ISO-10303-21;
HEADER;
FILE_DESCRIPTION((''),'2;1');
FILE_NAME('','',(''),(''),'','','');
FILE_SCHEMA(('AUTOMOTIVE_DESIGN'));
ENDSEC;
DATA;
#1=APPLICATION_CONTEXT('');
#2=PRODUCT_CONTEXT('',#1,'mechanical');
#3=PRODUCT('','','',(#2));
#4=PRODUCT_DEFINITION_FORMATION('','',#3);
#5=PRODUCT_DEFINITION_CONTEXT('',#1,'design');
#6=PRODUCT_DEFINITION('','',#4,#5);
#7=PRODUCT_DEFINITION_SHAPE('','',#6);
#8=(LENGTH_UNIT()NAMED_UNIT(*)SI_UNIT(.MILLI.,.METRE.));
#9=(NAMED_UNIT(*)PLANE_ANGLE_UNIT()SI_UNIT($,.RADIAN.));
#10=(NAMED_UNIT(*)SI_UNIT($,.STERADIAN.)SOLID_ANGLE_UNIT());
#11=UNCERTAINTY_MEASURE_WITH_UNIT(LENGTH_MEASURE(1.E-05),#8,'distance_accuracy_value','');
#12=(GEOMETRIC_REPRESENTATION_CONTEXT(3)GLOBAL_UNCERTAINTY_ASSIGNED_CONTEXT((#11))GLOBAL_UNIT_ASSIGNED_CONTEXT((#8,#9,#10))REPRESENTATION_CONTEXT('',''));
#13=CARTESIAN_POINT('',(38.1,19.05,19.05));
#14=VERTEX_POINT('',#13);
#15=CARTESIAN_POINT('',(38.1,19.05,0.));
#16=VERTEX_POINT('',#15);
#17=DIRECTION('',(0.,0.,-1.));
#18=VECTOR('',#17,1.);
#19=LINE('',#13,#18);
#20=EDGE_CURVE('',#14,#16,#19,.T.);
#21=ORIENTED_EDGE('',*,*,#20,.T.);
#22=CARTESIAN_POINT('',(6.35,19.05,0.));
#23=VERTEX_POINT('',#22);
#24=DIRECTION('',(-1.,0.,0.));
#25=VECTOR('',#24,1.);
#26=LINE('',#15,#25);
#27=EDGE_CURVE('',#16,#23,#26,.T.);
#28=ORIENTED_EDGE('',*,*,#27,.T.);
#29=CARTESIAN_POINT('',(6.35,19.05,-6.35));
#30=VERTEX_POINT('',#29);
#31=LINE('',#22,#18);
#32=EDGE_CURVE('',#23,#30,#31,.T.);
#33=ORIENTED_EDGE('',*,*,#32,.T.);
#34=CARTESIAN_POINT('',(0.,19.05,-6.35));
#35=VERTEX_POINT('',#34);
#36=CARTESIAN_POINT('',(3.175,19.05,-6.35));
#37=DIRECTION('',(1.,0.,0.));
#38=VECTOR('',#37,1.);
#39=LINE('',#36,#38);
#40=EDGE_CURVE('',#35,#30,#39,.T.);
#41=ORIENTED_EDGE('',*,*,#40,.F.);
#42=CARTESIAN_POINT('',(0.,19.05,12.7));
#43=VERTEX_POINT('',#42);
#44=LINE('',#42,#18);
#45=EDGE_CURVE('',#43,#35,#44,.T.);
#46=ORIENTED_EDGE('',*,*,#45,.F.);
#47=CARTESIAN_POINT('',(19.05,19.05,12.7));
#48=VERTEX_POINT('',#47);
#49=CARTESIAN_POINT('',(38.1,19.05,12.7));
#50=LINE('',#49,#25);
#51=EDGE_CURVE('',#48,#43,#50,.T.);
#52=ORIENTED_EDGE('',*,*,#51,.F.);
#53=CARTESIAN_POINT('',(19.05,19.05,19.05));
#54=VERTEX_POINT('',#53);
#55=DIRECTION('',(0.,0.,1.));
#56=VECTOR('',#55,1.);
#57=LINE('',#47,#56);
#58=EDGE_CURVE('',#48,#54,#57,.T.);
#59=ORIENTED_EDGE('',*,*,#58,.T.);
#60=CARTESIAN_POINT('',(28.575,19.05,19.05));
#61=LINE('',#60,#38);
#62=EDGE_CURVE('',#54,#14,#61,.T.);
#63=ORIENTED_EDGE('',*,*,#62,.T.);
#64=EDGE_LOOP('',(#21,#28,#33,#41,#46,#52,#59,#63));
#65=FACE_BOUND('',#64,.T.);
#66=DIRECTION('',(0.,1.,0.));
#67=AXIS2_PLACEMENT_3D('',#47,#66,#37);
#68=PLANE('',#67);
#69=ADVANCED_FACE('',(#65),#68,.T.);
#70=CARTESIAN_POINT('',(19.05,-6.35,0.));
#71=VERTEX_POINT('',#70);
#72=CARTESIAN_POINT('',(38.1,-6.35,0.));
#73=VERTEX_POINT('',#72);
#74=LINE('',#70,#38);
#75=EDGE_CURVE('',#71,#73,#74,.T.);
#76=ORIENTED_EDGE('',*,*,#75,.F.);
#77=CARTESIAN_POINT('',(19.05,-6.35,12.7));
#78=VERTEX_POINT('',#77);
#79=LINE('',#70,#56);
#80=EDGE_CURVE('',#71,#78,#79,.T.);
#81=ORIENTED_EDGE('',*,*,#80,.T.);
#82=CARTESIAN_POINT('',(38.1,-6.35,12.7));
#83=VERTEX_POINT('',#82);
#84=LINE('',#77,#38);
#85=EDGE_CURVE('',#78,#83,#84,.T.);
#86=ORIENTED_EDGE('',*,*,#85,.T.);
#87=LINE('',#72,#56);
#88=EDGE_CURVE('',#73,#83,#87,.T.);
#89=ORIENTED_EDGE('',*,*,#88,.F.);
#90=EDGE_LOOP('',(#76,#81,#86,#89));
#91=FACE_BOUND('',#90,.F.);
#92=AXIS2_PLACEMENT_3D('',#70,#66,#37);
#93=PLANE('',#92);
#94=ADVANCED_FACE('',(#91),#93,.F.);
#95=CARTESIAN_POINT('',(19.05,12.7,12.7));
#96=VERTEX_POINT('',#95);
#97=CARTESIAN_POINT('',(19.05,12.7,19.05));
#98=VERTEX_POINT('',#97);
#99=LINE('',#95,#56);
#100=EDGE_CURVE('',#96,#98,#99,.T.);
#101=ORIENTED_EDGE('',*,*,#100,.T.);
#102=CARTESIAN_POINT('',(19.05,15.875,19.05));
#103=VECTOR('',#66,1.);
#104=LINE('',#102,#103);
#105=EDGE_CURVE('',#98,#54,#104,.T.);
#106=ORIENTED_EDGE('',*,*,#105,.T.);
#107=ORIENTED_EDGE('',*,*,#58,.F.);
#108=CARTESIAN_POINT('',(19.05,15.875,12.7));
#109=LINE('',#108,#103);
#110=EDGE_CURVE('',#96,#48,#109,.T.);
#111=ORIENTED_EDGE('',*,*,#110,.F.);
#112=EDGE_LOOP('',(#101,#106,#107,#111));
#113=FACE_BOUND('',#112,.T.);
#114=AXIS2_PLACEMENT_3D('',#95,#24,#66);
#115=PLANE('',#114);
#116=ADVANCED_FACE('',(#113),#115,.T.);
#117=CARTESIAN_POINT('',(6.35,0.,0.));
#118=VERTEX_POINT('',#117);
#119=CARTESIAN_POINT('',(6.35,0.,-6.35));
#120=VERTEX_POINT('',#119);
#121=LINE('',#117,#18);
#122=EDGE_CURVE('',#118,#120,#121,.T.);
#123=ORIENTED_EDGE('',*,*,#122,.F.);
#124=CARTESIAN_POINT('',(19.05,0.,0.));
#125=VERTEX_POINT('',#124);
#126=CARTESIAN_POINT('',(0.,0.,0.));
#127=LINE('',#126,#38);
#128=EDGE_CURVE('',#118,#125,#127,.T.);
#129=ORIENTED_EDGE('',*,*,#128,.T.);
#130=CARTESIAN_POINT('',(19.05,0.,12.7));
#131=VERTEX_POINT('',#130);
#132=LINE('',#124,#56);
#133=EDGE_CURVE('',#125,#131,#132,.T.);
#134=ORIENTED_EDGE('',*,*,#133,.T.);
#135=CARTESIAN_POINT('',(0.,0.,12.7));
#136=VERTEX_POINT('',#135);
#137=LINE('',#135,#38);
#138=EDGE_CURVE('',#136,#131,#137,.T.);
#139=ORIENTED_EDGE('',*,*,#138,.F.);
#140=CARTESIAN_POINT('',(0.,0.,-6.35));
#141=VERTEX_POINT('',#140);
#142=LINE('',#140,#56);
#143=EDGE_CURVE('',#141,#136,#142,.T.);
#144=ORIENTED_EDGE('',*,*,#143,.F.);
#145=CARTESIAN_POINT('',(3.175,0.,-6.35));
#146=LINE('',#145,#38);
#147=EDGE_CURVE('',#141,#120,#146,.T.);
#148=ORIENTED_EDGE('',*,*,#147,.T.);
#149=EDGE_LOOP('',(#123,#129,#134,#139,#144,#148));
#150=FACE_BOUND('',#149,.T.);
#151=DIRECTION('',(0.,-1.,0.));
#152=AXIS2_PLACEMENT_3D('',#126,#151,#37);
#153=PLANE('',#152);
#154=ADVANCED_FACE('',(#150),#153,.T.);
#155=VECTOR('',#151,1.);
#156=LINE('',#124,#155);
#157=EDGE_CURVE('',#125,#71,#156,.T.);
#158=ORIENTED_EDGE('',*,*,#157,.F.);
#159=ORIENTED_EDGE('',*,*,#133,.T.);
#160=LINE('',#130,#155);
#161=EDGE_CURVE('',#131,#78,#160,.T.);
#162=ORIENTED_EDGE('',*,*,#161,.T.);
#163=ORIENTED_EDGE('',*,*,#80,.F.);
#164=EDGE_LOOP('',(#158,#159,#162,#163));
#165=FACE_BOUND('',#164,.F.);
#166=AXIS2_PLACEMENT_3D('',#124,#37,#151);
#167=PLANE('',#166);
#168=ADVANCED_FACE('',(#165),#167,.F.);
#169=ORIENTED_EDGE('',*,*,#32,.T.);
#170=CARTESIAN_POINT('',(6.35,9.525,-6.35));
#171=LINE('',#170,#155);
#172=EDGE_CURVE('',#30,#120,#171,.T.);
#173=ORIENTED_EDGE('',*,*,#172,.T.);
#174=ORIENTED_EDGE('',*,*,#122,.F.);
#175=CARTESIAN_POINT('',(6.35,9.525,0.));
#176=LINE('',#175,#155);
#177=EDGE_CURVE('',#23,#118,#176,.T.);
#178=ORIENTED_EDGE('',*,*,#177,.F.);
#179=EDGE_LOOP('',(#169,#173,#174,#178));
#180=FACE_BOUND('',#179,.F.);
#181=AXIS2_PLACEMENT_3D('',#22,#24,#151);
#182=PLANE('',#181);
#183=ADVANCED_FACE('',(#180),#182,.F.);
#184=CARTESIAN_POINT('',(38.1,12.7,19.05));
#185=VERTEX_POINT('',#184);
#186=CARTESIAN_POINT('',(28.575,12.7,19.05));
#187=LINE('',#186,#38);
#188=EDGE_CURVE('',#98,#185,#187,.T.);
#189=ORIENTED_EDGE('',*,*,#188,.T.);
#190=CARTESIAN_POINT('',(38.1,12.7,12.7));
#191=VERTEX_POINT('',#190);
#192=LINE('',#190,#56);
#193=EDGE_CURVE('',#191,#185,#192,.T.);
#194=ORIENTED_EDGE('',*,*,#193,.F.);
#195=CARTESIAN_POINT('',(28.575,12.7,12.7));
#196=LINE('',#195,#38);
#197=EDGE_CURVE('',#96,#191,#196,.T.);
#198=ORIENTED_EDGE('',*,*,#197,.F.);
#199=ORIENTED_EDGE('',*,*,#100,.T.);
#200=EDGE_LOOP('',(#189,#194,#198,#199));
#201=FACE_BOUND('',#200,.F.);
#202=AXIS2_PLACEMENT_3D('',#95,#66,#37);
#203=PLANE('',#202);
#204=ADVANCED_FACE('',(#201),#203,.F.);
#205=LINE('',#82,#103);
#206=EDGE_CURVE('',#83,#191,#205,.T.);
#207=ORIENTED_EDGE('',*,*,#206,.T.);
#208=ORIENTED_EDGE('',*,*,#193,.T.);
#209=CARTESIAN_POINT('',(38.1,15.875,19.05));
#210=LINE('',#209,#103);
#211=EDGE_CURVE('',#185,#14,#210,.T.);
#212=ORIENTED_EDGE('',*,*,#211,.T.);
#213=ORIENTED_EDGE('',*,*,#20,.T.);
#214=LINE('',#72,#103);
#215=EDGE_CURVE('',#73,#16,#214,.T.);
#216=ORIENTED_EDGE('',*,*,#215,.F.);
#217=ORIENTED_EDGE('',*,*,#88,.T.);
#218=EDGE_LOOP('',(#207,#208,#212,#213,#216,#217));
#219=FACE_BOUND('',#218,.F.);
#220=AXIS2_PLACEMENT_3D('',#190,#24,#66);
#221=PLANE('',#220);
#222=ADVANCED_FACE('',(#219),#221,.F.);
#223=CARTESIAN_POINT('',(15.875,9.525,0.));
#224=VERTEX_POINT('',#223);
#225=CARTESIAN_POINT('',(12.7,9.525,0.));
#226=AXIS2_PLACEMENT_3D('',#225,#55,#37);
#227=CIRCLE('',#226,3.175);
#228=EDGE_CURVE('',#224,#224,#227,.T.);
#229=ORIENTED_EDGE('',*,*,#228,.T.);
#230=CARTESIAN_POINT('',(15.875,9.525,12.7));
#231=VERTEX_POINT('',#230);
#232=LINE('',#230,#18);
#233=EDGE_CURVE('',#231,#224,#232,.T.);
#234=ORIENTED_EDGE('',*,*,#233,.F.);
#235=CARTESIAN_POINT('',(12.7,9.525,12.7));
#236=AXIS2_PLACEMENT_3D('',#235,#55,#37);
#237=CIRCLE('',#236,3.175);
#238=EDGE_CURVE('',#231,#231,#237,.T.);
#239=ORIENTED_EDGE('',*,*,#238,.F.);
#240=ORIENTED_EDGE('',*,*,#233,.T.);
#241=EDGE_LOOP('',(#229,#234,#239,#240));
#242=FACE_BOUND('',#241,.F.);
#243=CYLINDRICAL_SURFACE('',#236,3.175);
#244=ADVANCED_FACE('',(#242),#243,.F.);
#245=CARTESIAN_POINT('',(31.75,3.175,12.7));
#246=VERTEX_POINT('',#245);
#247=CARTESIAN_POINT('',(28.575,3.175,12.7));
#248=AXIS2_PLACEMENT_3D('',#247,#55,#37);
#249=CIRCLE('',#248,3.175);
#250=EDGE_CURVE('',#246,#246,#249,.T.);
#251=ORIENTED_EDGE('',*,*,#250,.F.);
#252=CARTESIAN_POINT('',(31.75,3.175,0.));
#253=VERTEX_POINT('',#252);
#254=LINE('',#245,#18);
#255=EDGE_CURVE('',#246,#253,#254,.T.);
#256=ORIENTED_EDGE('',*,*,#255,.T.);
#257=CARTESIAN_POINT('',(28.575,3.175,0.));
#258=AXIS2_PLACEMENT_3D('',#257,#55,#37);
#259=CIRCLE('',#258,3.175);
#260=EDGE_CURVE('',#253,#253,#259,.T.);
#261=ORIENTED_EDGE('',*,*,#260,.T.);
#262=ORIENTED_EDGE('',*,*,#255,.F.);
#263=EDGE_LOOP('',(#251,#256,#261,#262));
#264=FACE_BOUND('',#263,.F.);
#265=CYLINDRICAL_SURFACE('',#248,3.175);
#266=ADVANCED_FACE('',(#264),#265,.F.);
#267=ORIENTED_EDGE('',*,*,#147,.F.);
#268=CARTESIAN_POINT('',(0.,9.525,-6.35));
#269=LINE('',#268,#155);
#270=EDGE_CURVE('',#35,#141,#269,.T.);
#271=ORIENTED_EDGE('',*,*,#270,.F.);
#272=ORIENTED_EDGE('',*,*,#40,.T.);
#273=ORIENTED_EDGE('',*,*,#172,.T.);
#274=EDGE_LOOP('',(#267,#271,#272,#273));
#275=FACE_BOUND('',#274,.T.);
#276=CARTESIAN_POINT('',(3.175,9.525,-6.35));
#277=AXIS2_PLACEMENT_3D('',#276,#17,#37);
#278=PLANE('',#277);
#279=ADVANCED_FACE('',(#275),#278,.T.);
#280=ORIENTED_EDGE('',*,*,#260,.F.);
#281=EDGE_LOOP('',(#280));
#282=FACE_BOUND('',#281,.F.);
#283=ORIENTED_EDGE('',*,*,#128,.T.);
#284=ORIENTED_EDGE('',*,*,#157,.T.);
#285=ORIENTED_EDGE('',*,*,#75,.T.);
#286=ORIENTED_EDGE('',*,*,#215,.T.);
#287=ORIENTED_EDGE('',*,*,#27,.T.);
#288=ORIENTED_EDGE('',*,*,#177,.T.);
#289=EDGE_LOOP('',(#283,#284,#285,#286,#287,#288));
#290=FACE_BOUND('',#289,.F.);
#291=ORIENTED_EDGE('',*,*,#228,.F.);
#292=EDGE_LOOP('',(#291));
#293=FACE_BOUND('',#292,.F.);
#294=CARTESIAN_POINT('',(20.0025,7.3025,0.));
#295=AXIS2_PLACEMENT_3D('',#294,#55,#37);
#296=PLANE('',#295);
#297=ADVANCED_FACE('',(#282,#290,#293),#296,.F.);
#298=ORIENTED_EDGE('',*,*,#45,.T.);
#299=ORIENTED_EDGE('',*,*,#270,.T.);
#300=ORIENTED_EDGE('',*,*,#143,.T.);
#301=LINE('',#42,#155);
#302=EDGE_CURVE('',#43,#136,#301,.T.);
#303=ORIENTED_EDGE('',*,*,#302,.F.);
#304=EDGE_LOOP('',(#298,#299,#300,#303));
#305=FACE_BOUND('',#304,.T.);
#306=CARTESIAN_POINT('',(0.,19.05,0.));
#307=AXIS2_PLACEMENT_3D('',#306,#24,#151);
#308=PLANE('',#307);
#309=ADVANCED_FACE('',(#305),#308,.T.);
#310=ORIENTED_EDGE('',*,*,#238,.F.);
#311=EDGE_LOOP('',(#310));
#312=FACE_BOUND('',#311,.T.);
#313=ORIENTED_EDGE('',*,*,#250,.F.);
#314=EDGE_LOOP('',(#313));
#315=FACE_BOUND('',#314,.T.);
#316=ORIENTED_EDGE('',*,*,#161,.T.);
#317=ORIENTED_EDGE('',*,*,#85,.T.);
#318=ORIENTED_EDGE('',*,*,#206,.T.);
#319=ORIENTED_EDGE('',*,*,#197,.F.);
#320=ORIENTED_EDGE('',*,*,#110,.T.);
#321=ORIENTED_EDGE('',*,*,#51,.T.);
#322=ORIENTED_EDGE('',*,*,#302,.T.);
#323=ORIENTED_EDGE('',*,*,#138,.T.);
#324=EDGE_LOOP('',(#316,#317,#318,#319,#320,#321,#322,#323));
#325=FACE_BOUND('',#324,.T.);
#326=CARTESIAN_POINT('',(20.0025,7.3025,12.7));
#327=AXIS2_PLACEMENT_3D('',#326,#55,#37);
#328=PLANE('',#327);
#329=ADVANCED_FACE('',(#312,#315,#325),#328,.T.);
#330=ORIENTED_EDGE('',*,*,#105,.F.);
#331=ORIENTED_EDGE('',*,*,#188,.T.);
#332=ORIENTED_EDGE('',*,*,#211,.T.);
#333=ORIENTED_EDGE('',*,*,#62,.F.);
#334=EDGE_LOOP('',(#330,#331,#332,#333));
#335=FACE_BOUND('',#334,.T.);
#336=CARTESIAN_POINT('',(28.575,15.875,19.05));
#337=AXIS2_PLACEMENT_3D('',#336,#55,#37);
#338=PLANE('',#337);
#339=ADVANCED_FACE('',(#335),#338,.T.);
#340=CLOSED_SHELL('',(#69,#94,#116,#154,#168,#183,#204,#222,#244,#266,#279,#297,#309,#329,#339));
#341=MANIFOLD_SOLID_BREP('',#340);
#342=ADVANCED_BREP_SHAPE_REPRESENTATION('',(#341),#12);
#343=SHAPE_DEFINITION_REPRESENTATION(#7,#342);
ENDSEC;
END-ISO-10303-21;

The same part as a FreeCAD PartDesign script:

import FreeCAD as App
import Part
import Sketcher
from FreeCAD import Vector
Q = App.Units.Quantity


def add_polygon(sketch, points):
    """Adds a closed chain of lines whose ends are joined by coincident constraints."""
    first, n = sketch.GeometryCount, len(points)
    for a, b in zip(points, points[1:] + points[:1]):
        sketch.addGeometry(Part.LineSegment(App.Vector(*a, 0), App.Vector(*b, 0)), False)
    for i in range(n):
        sketch.addConstraint(Sketcher.Constraint("Coincident", first + i, 2, first + (i + 1) % n, 1))

doc = App.newDocument("Part")
params = doc.addObject("Spreadsheet::Sheet", "Params")
for row, (alias, value) in enumerate([
    ("sketch1_height", "1 in"),
    ("sketch1_width", "1.5 in"),
    ("pad1_length", "0.5 in"),
    ("sketch2_width", "0.25 in"),
    ("sketch2_height", "0.75 in"),
    ("pad2_length", "0.25 in"),
    ("sketch3_width", "0.75 in"),
    ("sketch3_height", "0.25 in"),
    ("pad3_length", "0.25 in"),
    ("sketch4_diameter", "0.25 in"),
    ("pocket1_length", "1 in"),
    ("sketch5_diameter", "0.25 in"),
    ("pocket2_length", "1 in"),
], start=1):
    params.set(f"A{row}", alias)
    params.set(f"B{row}", "=" + value)
    params.setAlias(f"B{row}", alias)

body = doc.addObject("PartDesign::Body", "Body")

# Sketch on XY plane
sketch1 = body.newObject("Sketcher::SketchObject", "Sketch")
sketch1.AttachmentSupport = (doc.getObject("XY_Plane"), [""])
sketch1.MapMode = "FlatFace"
add_polygon(sketch1, [(0, 19), (0, 0), (19, 0), (19, -6), (38, -6), (38, 19)])  # lines 0-5
sketch1.addConstraint([
    Sketcher.Constraint("Vertical", 0),
    Sketcher.Constraint("Horizontal", 1),
    Sketcher.Constraint("Vertical", 2),
    Sketcher.Constraint("Horizontal", 3),
    Sketcher.Constraint("Vertical", 4),
    Sketcher.Constraint("Horizontal", 5),
    Sketcher.Constraint("Coincident", 0, 2, -1, 1),
    Sketcher.Constraint("Equal", 1, 3),
    Sketcher.Constraint("Equal", 3, 0),
    Sketcher.Constraint("DistanceY", 4, 1, 4, 2, Q("1 in")),
    Sketcher.Constraint("DistanceX", 5, 2, 5, 1, Q("1.5 in")),
])
sketch1.setExpression("Constraints[15]", "Params.sketch1_height")
sketch1.setExpression("Constraints[16]", "Params.sketch1_width")
pad1 = body.newObject("PartDesign::Pad", "Pad")
pad1.Profile = sketch1
pad1.setExpression("Length", "Params.pad1_length")

# Sketch on XY plane
sketch2 = body.newObject("Sketcher::SketchObject", "Sketch001")
sketch2.AttachmentSupport = (doc.getObject("XY_Plane"), [""])
sketch2.MapMode = "FlatFace"
add_polygon(sketch2, [(0, 0), (0, 19), (6, 19), (6, 0)])  # lines 0-3
sketch2.addConstraint([
    Sketcher.Constraint("Vertical", 0),
    Sketcher.Constraint("Horizontal", 1),
    Sketcher.Constraint("Vertical", 2),
    Sketcher.Constraint("Horizontal", 3),
    Sketcher.Constraint("Coincident", 3, 2, -1, 1),
    Sketcher.Constraint("DistanceX", 1, 1, 1, 2, Q("0.25 in")),
    Sketcher.Constraint("DistanceY", 0, 1, 0, 2, Q("0.75 in")),
])
sketch2.setExpression("Constraints[9]", "Params.sketch2_width")
sketch2.setExpression("Constraints[10]", "Params.sketch2_height")
pad2 = body.newObject("PartDesign::Pad", "Pad001")
pad2.Profile = sketch2
pad2.setExpression("Length", "Params.pad2_length")
pad2.Reversed = True

# Sketch on XY plane
sketch3 = body.newObject("Sketcher::SketchObject", "Sketch002")
sketch3.AttachmentSupport = (doc.getObject("XY_Plane"), [""])
sketch3.MapMode = "FlatFace"
sketch3.AttachmentOffset = App.Placement(Vector(0, 0, 0.5 * 25.4), App.Rotation())
add_polygon(sketch3, [(19, 19), (19, 13), (38, 13), (38, 19)])  # lines 0-3
sketch3.addConstraint([
    Sketcher.Constraint("Vertical", 0),
    Sketcher.Constraint("Horizontal", 1),
    Sketcher.Constraint("Vertical", 2),
    Sketcher.Constraint("Horizontal", 3),
    Sketcher.Constraint("DistanceX", 1, 1, 1, 2, Q("0.75 in")),
    Sketcher.Constraint("DistanceY", 0, 2, 0, 1, Q("0.25 in")),
    Sketcher.Constraint("DistanceY", -1, 1, 0, 2, Q("0.5 in")),
    Sketcher.Constraint("DistanceX", -1, 1, 1, 2, Q("1.5 in")),
])
sketch3.setExpression("Constraints[8]", "Params.sketch3_width")
sketch3.setExpression("Constraints[9]", "Params.sketch3_height")
pad3 = body.newObject("PartDesign::Pad", "Pad002")
pad3.Profile = sketch3
pad3.setExpression("Length", "Params.pad3_length")

# Sketch on XY plane
sketch4 = body.newObject("Sketcher::SketchObject", "Sketch003")
sketch4.AttachmentSupport = (doc.getObject("XY_Plane"), [""])
sketch4.MapMode = "FlatFace"
sketch4.AttachmentOffset = App.Placement(Vector(0, 0, 0.5 * 25.4), App.Rotation())
sketch4.addGeometry(Part.Circle(Vector(28.6, 3.2, 0), Vector(0, 0, 1), 3.2), False)
sketch4.addConstraint([
    Sketcher.Constraint("Diameter", 0, Q("0.25 in")),
    Sketcher.Constraint("DistanceX", -1, 1, 0, 3, Q("1.125 in")),
    Sketcher.Constraint("DistanceY", -1, 1, 0, 3, Q("0.125 in")),
])
sketch4.setExpression("Constraints[0]", "Params.sketch4_diameter")
pocket1 = body.newObject("PartDesign::Pocket", "Pocket")
pocket1.Profile = sketch4
pocket1.setExpression("Length", "Params.pocket1_length")

# Sketch on XY plane
sketch5 = body.newObject("Sketcher::SketchObject", "Sketch004")
sketch5.AttachmentSupport = (doc.getObject("XY_Plane"), [""])
sketch5.MapMode = "FlatFace"
sketch5.AttachmentOffset = App.Placement(Vector(0, 0, 0.5 * 25.4), App.Rotation())
sketch5.addGeometry(Part.Circle(Vector(12.7, 9.5, 0), Vector(0, 0, 1), 3.2), False)
sketch5.addConstraint([
    Sketcher.Constraint("Diameter", 0, Q("0.25 in")),
    Sketcher.Constraint("DistanceX", -1, 1, 0, 3, Q("0.5 in")),
    Sketcher.Constraint("DistanceY", -1, 1, 0, 3, Q("0.375 in")),
])
sketch5.setExpression("Constraints[0]", "Params.sketch5_diameter")
pocket2 = body.newObject("PartDesign::Pocket", "Pocket001")
pocket2.Profile = sketch5
pocket2.setExpression("Length", "Params.pocket2_length")

doc.recompute()
